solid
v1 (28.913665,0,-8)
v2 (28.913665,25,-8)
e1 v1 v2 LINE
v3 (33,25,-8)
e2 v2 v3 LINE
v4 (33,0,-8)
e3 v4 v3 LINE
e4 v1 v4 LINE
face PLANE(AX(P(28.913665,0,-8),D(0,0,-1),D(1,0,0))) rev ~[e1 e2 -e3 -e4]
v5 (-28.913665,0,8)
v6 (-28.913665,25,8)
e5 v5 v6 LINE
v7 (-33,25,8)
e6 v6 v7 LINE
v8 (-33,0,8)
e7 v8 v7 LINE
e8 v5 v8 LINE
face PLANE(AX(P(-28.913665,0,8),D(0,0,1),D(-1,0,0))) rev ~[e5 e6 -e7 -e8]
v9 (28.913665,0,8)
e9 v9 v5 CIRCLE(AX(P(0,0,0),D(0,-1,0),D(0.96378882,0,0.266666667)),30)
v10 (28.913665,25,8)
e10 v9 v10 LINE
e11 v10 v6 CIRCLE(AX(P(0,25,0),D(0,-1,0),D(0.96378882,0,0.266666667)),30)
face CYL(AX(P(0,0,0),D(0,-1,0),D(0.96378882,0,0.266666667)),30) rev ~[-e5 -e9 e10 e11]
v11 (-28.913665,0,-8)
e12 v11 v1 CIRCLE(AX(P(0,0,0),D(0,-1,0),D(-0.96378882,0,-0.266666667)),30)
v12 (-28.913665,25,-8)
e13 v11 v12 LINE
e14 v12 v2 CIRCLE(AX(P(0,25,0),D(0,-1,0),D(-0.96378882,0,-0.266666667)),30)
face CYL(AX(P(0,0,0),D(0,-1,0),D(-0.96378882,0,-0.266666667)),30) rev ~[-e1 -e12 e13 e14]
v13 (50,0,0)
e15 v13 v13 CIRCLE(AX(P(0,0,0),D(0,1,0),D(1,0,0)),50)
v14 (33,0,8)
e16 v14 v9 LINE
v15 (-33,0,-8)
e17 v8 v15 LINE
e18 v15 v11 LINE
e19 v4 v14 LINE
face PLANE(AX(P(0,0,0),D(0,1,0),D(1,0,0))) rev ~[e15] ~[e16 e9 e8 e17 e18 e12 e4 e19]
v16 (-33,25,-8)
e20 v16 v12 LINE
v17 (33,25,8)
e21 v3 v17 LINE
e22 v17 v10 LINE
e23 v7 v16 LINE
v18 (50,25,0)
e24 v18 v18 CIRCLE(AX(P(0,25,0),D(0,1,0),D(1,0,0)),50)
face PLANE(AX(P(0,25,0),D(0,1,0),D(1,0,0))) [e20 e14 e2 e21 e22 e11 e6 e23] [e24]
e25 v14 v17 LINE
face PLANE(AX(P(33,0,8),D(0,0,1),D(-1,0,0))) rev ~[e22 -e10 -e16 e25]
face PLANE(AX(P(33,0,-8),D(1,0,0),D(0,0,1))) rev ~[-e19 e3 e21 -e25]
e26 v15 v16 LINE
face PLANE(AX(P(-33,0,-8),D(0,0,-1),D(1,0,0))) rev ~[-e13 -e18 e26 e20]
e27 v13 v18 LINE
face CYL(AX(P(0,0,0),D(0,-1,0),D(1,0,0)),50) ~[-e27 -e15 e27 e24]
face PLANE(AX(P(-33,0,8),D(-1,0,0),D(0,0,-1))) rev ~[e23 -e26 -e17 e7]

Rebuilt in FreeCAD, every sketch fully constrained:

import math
import FreeCAD as App
import Part
import Sketcher
from FreeCAD import Vector
Q = App.Units.Quantity

doc = App.newDocument("Part")
body = doc.addObject("PartDesign::Body", "Body")

# Sketch on XZ plane
sketch1 = doc.addObject("Sketcher::SketchObject", "Sketch")
body.addObject(sketch1)
sketch1.AttachmentSupport = (doc.XZ_Plane, [""])
sketch1.MapMode = "FlatFace"
sketch1.addGeometry(Part.Circle(Vector(0, 0, 0), Vector(0, 0, 1), 50), False)
sketch1.addGeometry(Part.ArcOfCircle(Part.Circle(Vector(0, 0, 0), Vector(0, 0, 1), 30), math.radians(15), math.radians(165)), False)
sketch1.addGeometry(Part.LineSegment(Vector(-28.9, 8, 0), Vector(-33, 8, 0)), False)
sketch1.addGeometry(Part.LineSegment(Vector(-33, 8, 0), Vector(-33, -8, 0)), False)
sketch1.addGeometry(Part.LineSegment(Vector(-33, -8, 0), Vector(-28.9, -8, 0)), False)
sketch1.addGeometry(Part.ArcOfCircle(Part.Circle(Vector(0, 0, 0), Vector(0, 0, 1), 30), math.radians(-165), math.radians(-15)), False)
sketch1.addGeometry(Part.LineSegment(Vector(28.9, -8, 0), Vector(33, -8, 0)), False)
sketch1.addGeometry(Part.LineSegment(Vector(33, -8, 0), Vector(33, 8, 0)), False)
sketch1.addGeometry(Part.LineSegment(Vector(33, 8, 0), Vector(28.9, 8, 0)), False)
sketch1.addConstraint(Sketcher.Constraint("Coincident", 1, 2, 2, 1))
sketch1.addConstraint(Sketcher.Constraint("Coincident", 2, 2, 3, 1))
sketch1.addConstraint(Sketcher.Constraint("Coincident", 3, 2, 4, 1))
sketch1.addConstraint(Sketcher.Constraint("Coincident", 4, 2, 5, 1))
sketch1.addConstraint(Sketcher.Constraint("Coincident", 5, 2, 6, 1))
sketch1.addConstraint(Sketcher.Constraint("Coincident", 6, 2, 7, 1))
sketch1.addConstraint(Sketcher.Constraint("Coincident", 7, 2, 8, 1))
sketch1.addConstraint(Sketcher.Constraint("Coincident", 8, 2, 1, 1))
sketch1.addConstraint(Sketcher.Constraint("Horizontal", 2))
sketch1.addConstraint(Sketcher.Constraint("Vertical", 3))
sketch1.addConstraint(Sketcher.Constraint("Horizontal", 4))
sketch1.addConstraint(Sketcher.Constraint("Horizontal", 6))
sketch1.addConstraint(Sketcher.Constraint("Vertical", 7))
sketch1.addConstraint(Sketcher.Constraint("Horizontal", 8))
sketch1.addConstraint(Sketcher.Constraint("Coincident", 0, 3, -1, 1))
sketch1.addConstraint(Sketcher.Constraint("Coincident", 1, 3, -1, 1))
sketch1.addConstraint(Sketcher.Constraint("Coincident", 5, 3, -1, 1))
sketch1.addConstraint(Sketcher.Constraint("Equal", 1, 5))
sketch1.addConstraint(Sketcher.Constraint("Symmetric", 2, 2, 6, 2, -1, 1))
sketch1.addConstraint(Sketcher.Constraint("Horizontal", 4, 2, 5, 2))
sketch1.addConstraint(Sketcher.Constraint("Horizontal", 2, 2, 7, 2))
sketch1.addConstraint(Sketcher.Constraint("Diameter", 0, Q("100 mm")))
sketch1.addConstraint(Sketcher.Constraint("Radius", 1, Q("30 mm")))
sketch1.addConstraint(Sketcher.Constraint("DistanceY", 3, 2, 3, 1, Q("16 mm")))
sketch1.addConstraint(Sketcher.Constraint("DistanceX", 2, 2, -1, 1, Q("33 mm")))
pad1 = doc.addObject("PartDesign::Pad", "Pad")
body.addObject(pad1)
pad1.Profile = sketch1
pad1.Length = 25
pad1.Reversed = True

doc.recompute()
